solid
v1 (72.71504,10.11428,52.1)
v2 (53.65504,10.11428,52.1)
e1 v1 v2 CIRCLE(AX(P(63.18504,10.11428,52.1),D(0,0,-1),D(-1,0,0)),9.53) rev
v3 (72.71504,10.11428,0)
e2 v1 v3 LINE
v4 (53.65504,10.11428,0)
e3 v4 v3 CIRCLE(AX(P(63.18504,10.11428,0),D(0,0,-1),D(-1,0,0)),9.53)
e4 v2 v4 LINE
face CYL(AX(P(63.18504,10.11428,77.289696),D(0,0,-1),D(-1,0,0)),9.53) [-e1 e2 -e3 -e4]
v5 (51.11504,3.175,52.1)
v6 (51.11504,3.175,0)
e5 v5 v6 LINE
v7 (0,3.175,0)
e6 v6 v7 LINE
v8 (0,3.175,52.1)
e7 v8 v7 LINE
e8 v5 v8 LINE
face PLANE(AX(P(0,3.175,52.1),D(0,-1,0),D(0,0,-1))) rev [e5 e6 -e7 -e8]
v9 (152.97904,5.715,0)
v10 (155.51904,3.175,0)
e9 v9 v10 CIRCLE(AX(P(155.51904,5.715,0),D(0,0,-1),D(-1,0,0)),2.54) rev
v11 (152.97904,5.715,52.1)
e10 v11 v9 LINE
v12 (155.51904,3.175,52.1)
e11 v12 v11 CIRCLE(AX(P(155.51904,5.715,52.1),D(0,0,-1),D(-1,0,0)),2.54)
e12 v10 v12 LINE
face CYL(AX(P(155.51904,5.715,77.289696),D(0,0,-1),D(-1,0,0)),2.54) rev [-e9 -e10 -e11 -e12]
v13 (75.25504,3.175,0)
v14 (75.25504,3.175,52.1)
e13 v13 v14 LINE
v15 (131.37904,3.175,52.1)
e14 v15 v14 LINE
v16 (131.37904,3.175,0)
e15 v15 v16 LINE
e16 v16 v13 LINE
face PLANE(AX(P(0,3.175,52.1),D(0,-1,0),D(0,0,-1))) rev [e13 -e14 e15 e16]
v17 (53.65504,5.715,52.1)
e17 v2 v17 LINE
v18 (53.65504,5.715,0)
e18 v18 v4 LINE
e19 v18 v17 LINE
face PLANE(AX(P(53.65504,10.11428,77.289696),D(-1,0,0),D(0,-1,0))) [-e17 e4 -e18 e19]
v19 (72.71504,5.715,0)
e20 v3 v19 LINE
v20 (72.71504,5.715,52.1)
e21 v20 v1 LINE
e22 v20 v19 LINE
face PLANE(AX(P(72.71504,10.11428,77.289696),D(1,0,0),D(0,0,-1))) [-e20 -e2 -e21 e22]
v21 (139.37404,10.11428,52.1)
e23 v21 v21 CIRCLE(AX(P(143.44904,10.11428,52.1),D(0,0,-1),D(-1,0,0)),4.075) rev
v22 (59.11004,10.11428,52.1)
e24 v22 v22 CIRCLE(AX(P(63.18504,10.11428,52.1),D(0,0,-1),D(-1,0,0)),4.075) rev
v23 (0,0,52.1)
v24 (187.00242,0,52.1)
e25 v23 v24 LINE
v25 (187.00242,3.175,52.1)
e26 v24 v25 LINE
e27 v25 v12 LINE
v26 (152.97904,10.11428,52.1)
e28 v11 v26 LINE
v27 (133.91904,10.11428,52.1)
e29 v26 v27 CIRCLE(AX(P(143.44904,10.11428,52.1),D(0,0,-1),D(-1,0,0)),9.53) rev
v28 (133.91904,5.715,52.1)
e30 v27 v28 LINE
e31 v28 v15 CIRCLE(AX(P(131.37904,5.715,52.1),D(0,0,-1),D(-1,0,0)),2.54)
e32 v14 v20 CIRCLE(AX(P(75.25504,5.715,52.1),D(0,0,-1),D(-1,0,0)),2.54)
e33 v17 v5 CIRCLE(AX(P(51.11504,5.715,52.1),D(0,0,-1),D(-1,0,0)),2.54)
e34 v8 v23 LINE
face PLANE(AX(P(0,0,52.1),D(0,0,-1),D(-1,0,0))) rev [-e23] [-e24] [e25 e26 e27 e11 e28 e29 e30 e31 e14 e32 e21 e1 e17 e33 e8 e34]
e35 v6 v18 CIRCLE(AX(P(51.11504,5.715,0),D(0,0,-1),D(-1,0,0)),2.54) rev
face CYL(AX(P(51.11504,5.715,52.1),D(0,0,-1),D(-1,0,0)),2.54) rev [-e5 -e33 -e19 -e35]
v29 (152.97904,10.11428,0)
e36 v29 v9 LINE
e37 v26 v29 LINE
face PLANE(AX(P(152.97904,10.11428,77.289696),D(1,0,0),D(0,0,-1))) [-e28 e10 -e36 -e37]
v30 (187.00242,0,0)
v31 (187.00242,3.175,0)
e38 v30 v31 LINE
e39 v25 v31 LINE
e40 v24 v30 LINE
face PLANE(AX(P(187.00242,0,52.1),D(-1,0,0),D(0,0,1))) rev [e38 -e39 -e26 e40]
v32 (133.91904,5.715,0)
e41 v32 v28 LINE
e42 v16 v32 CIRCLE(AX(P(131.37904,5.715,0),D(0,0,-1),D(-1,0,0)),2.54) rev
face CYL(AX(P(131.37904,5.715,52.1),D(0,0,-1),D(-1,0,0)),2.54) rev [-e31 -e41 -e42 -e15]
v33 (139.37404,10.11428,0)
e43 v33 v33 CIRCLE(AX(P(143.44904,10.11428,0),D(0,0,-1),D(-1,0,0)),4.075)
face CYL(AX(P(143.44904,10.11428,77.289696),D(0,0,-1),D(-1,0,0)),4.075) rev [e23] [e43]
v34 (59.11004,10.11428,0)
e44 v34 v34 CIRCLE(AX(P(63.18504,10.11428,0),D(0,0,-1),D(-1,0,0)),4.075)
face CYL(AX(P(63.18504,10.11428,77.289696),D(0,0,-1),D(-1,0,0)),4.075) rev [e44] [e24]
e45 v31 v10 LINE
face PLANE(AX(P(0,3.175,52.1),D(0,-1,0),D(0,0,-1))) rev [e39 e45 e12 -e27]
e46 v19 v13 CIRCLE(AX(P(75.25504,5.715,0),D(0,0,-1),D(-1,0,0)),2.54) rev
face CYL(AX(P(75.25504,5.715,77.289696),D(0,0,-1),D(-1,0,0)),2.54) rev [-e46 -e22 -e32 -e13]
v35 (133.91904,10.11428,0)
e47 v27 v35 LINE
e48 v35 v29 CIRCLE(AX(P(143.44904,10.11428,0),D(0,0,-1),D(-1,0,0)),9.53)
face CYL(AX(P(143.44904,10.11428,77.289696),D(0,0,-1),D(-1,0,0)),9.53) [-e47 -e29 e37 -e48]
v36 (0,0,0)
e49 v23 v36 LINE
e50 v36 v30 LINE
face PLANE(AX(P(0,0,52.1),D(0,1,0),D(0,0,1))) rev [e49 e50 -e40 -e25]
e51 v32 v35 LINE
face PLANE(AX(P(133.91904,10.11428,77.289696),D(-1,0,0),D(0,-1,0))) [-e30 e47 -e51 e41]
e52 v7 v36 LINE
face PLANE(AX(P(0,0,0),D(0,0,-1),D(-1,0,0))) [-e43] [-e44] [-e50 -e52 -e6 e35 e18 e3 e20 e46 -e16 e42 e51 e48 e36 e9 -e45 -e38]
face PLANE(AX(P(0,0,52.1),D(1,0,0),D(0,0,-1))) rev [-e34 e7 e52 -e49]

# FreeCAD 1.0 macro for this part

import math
import FreeCAD as App
import Part
import Sketcher
from FreeCAD import Vector
Q = App.Units.Quantity


def edges_at(feature, points):
    """Names of the edges that pass closest to the given points."""
    edges = feature.Shape.Edges
    near = lambda p: min(range(len(edges)), key=lambda i: edges[i].distToShape(Part.Vertex(*p))[0])
    return sorted({f"Edge{near(p) + 1}" for p in points})


def add_polygon(sketch, points):
    """Adds a closed chain of lines whose ends are joined by coincident constraints."""
    first, n = sketch.GeometryCount, len(points)
    for a, b in zip(points, points[1:] + points[:1]):
        sketch.addGeometry(Part.LineSegment(App.Vector(*a, 0), App.Vector(*b, 0)), False)
    for i in range(n):
        sketch.addConstraint(Sketcher.Constraint("Coincident", first + i, 2, first + (i + 1) % n, 1))

doc = App.newDocument("Part")
body = doc.addObject("PartDesign::Body", "Body")

# Sketch on XY plane
sketch1 = body.newObject("Sketcher::SketchObject", "Sketch")
sketch1.AttachmentSupport = (doc.getObject("XY_Plane"), [""])
sketch1.MapMode = "FlatFace"
add_polygon(sketch1, [(0, 3.175), (0, 0), (399.27784, 0), (399.27784, 3.175)])  # lines 0-3
sketch1.addConstraint([
    Sketcher.Constraint("Vertical", 0),
    Sketcher.Constraint("Horizontal", 1),
    Sketcher.Constraint("Vertical", 2),
    Sketcher.Constraint("Horizontal", 3),
    Sketcher.Constraint("Coincident", 0, 2, -1, 1),
    Sketcher.Constraint("DistanceY", 0, 2, 0, 1, Q("0.125 in")),
    Sketcher.Constraint("DistanceX", 1, 1, 1, 2, Q("15.7196 in")),
])
pad1 = body.newObject("PartDesign::Pad", "Pad")
pad1.Profile = sketch1
pad1.Length = 52.1

# Sketch on XY plane
sketch2 = body.newObject("Sketcher::SketchObject", "Sketch001")
sketch2.AttachmentSupport = (doc.getObject("XY_Plane"), [""])
sketch2.MapMode = "FlatFace"
sketch2.addGeometry([
    Part.LineSegment(Vector(313.50704, 10.11428, 0), Vector(313.50704, 3.175, 0)),  # 0
    Part.LineSegment(Vector(313.50704, 3.175, 0), Vector(294.44704, 3.175, 0)),  # 1
    Part.LineSegment(Vector(294.44704, 3.175, 0), Vector(294.44704, 10.11428, 0)),  # 2
    Part.ArcOfCircle(Part.Circle(Vector(303.97704, 10.11428, 0), Vector(0, 0, 1), 9.53), math.radians(0), math.radians(180)),  # 3
    Part.Circle(Vector(303.97704, 10.11428, 0), Vector(0, 0, 1), 4.075),  # 4
    Part.LineSegment(Vector(233.24304, 3.175, 0), Vector(214.18304, 3.175, 0)),  # 5
    Part.LineSegment(Vector(214.18304, 3.175, 0), Vector(214.18304, 10.11428, 0)),  # 6
    Part.ArcOfCircle(Part.Circle(Vector(223.71304, 10.11428, 0), Vector(0, 0, 1), 9.53), math.radians(0), math.radians(180)),  # 7
    Part.LineSegment(Vector(233.24304, 10.11428, 0), Vector(233.24304, 3.175, 0)),  # 8
    Part.Circle(Vector(223.71304, 10.11428, 0), Vector(0, 0, 1), 4.075),  # 9
    Part.LineSegment(Vector(152.97904, 3.175, 0), Vector(133.91904, 3.175, 0)),  # 10
    Part.LineSegment(Vector(133.91904, 3.175, 0), Vector(133.91904, 10.11428, 0)),  # 11
    Part.ArcOfCircle(Part.Circle(Vector(143.44904, 10.11428, 0), Vector(0, 0, 1), 9.53), math.radians(0), math.radians(180)),  # 12
    Part.LineSegment(Vector(152.97904, 10.11428, 0), Vector(152.97904, 3.175, 0)),  # 13
    Part.Circle(Vector(143.44904, 10.11428, 0), Vector(0, 0, 1), 4.075),  # 14
    Part.LineSegment(Vector(72.71504, 3.175, 0), Vector(53.65504, 3.175, 0)),  # 15
    Part.LineSegment(Vector(53.65504, 3.175, 0), Vector(53.65504, 10.11428, 0)),  # 16
    Part.ArcOfCircle(Part.Circle(Vector(63.18504, 10.11428, 0), Vector(0, 0, 1), 9.53), math.radians(0), math.radians(180)),  # 17
    Part.LineSegment(Vector(72.71504, 10.11428, 0), Vector(72.71504, 3.175, 0)),  # 18
    Part.Circle(Vector(63.18504, 10.11428, 0), Vector(0, 0, 1), 4.075),  # 19
], False)
sketch2.addConstraint([
    Sketcher.Constraint("Coincident", 0, 2, 1, 1),
    Sketcher.Constraint("Coincident", 1, 2, 2, 1),
    Sketcher.Constraint("Tangent", 2, 2, 3, 2),
    Sketcher.Constraint("Tangent", 3, 1, 0, 1),
    Sketcher.Constraint("Coincident", 5, 2, 6, 1),
    Sketcher.Constraint("Tangent", 6, 2, 7, 2),
    Sketcher.Constraint("Tangent", 7, 1, 8, 1),
    Sketcher.Constraint("Coincident", 8, 2, 5, 1),
    Sketcher.Constraint("Coincident", 10, 2, 11, 1),
    Sketcher.Constraint("Tangent", 11, 2, 12, 2),
    Sketcher.Constraint("Tangent", 12, 1, 13, 1),
    Sketcher.Constraint("Coincident", 13, 2, 10, 1),
    Sketcher.Constraint("Coincident", 15, 2, 16, 1),
    Sketcher.Constraint("Tangent", 16, 2, 17, 2),
    Sketcher.Constraint("Tangent", 17, 1, 18, 1),
    Sketcher.Constraint("Coincident", 18, 2, 15, 1),
    Sketcher.Constraint("Vertical", 0),
    Sketcher.Constraint("Horizontal", 1),
    Sketcher.Constraint("Vertical", 2),
    Sketcher.Constraint("Horizontal", 5),
    Sketcher.Constraint("Vertical", 6),
    Sketcher.Constraint("Vertical", 8),
    Sketcher.Constraint("Horizontal", 10),
    Sketcher.Constraint("Vertical", 11),
    Sketcher.Constraint("Vertical", 13),
    Sketcher.Constraint("Horizontal", 15),
    Sketcher.Constraint("Vertical", 16),
    Sketcher.Constraint("Vertical", 18),
    Sketcher.Constraint("Coincident", 4, 3, 3, 3),
    Sketcher.Constraint("Coincident", 9, 3, 7, 3),
    Sketcher.Constraint("Coincident", 14, 3, 12, 3),
    Sketcher.Constraint("Coincident", 19, 3, 17, 3),
    Sketcher.Constraint("Equal", 3, 7),
    Sketcher.Constraint("Equal", 4, 9),
    Sketcher.Constraint("Equal", 7, 12),
    Sketcher.Constraint("Equal", 9, 14),
    Sketcher.Constraint("Equal", 12, 17),
    Sketcher.Constraint("Equal", 14, 19),
    Sketcher.Constraint("Horizontal", 4, 3, 7, 3),
    Sketcher.Constraint("Horizontal", 9, 3, 12, 3),
    Sketcher.Constraint("Horizontal", 14, 3, 17, 3),
    Sketcher.Constraint("Horizontal", 1, 2, 5, 2),
    Sketcher.Constraint("Horizontal", 8, 2, 10, 2),
    Sketcher.Constraint("Horizontal", 13, 2, 15, 2),
    Sketcher.Constraint("Diameter", 4, 8.15),
    Sketcher.Constraint("Radius", 3, 9.53),
    Sketcher.Constraint("DistanceX", 7, 3, 3, 3, Q("3.16 in")),
    Sketcher.Constraint("DistanceX", 12, 3, 7, 3, Q("3.16 in")),
    Sketcher.Constraint("DistanceX", 17, 3, 12, 3, Q("3.16 in")),
    Sketcher.Constraint("DistanceY", 0, 2, 0, 1, Q("0.2732 in")),
    Sketcher.Constraint("DistanceY", -1, 1, 0, 2, Q("0.125 in")),
    Sketcher.Constraint("DistanceX", -1, 1, 3, 3, Q("11.9676 in")),
])
pad2 = body.newObject("PartDesign::Pad", "Pad001")
pad2.Profile = sketch2
pad2.Length = 52.1
doc.recompute()

fillet = body.newObject("PartDesign::Fillet", "Fillet")
fillet.Base = (pad2, edges_at(pad2, [
    (294.447, 3.175, 26.05),
    (313.507, 3.175, 26.05),
    (233.243, 3.175, 26.05),
    (214.183, 3.175, 26.05),
    (152.979, 3.175, 26.05),
    (133.919, 3.175, 26.05),
    (72.715, 3.175, 26.05),
    (53.655, 3.175, 26.05),
]))
fillet.Radius = Q("0.1 in")

# Sketch on XY plane
sketch3 = body.newObject("Sketcher::SketchObject", "Sketch002")
sketch3.AttachmentSupport = (doc.getObject("XY_Plane"), [""])
sketch3.MapMode = "FlatFace"
add_polygon(sketch3, [(399.27784, 58.123398), (399.27784, 0), (187.00242, 0), (187.00242, 58.123398)])  # lines 0-3
sketch3.addConstraint([
    Sketcher.Constraint("Vertical", 0),
    Sketcher.Constraint("Horizontal", 1),
    Sketcher.Constraint("Vertical", 2),
    Sketcher.Constraint("Horizontal", 3),
    Sketcher.Constraint("PointOnObject", 0, 2, -1),
    Sketcher.Constraint("DistanceX", 1, 2, 1, 1, Q("8.3573 in")),
    Sketcher.Constraint("DistanceX", -1, 1, 0, 2, Q("15.7196 in")),
    Sketcher.Constraint("DistanceY", 0, 2, 0, 1, 58.123398),
])
pocket1 = body.newObject("PartDesign::Pocket", "Pocket")
pocket1.Profile = sketch3
pocket1.Type = "ThroughAll"
pocket1.Reversed = True

doc.recompute()
